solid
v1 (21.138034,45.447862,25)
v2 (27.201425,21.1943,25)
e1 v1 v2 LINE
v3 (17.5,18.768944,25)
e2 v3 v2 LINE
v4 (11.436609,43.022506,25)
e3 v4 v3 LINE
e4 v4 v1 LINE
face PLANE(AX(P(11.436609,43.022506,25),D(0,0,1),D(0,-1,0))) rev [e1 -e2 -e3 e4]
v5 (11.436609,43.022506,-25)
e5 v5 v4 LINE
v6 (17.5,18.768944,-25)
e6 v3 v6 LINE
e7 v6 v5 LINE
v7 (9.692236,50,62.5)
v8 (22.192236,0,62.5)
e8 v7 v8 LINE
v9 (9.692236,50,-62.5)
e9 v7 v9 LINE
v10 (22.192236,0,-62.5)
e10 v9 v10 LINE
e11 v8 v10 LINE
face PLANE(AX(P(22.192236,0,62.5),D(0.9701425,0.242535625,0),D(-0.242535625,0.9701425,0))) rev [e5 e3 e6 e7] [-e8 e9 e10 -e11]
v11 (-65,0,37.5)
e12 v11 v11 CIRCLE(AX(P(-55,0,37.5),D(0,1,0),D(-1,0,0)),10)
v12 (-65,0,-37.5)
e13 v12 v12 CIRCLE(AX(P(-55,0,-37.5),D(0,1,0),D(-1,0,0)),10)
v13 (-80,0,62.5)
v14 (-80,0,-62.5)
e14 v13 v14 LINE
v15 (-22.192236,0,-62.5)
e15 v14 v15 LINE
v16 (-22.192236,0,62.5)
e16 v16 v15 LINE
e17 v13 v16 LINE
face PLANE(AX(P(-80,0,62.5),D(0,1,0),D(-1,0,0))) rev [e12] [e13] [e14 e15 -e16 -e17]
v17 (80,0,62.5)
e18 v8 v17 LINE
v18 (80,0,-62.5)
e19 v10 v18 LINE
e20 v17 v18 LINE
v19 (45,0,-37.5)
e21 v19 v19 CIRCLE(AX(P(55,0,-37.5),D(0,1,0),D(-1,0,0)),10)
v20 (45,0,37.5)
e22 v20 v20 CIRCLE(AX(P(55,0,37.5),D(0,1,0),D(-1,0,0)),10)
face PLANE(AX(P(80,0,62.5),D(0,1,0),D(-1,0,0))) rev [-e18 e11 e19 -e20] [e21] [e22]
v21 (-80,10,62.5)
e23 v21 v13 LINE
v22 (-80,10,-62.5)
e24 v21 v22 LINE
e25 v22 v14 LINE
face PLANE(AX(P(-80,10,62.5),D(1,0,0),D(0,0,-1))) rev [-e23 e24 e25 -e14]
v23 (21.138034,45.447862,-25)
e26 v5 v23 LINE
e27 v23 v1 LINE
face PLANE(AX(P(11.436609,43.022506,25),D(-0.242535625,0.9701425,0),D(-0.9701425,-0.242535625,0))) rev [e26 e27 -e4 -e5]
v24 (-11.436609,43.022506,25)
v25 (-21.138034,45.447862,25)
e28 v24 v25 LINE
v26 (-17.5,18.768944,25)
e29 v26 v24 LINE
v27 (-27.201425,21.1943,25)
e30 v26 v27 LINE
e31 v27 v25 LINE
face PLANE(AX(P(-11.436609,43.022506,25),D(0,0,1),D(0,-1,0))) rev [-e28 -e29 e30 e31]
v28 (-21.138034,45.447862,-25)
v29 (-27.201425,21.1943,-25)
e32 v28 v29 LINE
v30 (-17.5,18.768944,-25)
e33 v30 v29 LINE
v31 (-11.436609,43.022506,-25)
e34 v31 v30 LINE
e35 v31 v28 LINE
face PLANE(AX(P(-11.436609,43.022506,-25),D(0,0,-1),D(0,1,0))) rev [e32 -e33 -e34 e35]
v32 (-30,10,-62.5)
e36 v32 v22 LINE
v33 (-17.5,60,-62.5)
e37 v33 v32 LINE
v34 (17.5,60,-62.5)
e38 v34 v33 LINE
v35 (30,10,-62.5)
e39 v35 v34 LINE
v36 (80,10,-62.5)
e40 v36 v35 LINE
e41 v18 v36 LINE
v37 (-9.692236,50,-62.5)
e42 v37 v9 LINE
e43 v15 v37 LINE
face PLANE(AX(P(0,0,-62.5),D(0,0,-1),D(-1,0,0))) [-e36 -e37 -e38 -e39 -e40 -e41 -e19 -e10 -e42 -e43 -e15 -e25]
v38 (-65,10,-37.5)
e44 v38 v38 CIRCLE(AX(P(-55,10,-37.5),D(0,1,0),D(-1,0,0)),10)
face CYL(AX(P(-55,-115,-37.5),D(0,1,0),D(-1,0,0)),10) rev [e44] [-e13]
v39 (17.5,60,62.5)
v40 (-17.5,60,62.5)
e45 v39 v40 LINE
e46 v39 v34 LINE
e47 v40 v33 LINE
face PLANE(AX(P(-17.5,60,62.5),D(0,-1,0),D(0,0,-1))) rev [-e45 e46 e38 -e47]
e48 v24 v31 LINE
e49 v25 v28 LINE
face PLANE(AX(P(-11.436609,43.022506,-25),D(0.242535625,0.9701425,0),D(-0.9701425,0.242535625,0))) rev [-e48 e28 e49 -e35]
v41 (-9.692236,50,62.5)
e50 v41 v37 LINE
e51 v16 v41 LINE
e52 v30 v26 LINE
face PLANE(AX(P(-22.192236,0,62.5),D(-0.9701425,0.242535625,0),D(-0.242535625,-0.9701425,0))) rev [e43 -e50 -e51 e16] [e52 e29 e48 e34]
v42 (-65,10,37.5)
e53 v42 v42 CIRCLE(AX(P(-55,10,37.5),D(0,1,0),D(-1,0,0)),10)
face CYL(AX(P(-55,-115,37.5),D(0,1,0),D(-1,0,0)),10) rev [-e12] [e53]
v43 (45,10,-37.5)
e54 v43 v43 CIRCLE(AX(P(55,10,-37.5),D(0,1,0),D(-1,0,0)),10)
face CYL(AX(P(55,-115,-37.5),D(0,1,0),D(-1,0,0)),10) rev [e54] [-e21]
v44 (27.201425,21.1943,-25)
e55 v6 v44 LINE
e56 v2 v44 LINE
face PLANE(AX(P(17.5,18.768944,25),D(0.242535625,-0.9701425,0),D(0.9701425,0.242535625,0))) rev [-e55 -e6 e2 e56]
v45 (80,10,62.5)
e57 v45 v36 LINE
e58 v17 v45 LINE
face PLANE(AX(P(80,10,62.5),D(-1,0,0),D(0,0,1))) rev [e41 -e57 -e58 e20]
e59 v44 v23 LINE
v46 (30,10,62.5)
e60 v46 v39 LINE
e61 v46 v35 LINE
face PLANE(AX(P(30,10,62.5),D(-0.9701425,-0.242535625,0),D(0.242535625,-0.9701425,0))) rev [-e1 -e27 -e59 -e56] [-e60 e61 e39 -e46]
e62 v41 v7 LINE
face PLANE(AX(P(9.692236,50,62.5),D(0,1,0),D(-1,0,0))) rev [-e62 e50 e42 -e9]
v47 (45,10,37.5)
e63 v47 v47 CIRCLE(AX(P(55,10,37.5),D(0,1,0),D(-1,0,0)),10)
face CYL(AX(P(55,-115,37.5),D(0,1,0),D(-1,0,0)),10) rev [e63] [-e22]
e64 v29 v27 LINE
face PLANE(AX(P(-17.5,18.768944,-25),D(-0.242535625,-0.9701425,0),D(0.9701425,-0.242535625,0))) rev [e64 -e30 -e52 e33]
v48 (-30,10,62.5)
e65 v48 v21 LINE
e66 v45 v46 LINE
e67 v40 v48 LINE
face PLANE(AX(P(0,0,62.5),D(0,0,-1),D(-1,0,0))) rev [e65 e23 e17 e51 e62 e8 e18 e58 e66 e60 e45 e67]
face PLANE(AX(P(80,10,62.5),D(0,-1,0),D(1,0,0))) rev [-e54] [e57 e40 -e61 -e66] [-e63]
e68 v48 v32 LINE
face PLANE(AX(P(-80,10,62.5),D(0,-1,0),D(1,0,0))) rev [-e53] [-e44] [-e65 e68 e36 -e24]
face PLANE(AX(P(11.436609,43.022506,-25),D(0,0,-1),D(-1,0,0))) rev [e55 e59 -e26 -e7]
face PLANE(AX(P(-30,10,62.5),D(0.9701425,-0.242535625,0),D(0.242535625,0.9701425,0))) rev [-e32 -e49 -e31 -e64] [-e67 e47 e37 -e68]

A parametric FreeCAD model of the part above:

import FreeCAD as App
import Part
import Sketcher

V = App.Vector
Q = App.Units.Quantity

doc = App.newDocument("Part")
body = doc.addObject("PartDesign::Body", "Body")

# Sketch on XY plane
sketch1 = body.newObject("Sketcher::SketchObject", "Sketch")
sketch1.AttachmentSupport = (doc.getObject("XY_Plane"), [""])
sketch1.MapMode = "FlatFace"
sketch1.addGeometry([
    Part.LineSegment(V(18, 60, 0), V(-18, 60, 0)),  # 0
    Part.LineSegment(V(-18, 60, 0), V(-30, 10, 0)),  # 1
    Part.LineSegment(V(-30, 10, 0), V(-80, 10, 0)),  # 2
    Part.LineSegment(V(-80, 10, 0), V(-80, 0, 0)),  # 3
    Part.LineSegment(V(-80, 0, 0), V(-22, 0, 0)),  # 4
    Part.LineSegment(V(-22, 0, 0), V(-10, 50, 0)),  # 5
    Part.LineSegment(V(-10, 50, 0), V(10, 50, 0)),  # 6
    Part.LineSegment(V(10, 50, 0), V(22, 0, 0)),  # 7
    Part.LineSegment(V(22, 0, 0), V(80, 0, 0)),  # 8
    Part.LineSegment(V(80, 0, 0), V(80, 10, 0)),  # 9
    Part.LineSegment(V(80, 10, 0), V(30, 10, 0)),  # 10
    Part.LineSegment(V(30, 10, 0), V(18, 60, 0)),  # 11
], False)
sketch1.addConstraint([
    Sketcher.Constraint("Coincident", 0, 2, 1, 1),
    Sketcher.Constraint("Coincident", 1, 2, 2, 1),
    Sketcher.Constraint("Coincident", 2, 2, 3, 1),
    Sketcher.Constraint("Coincident", 3, 2, 4, 1),
    Sketcher.Constraint("Coincident", 4, 2, 5, 1),
    Sketcher.Constraint("Coincident", 5, 2, 6, 1),
    Sketcher.Constraint("Coincident", 6, 2, 7, 1),
    Sketcher.Constraint("Coincident", 7, 2, 8, 1),
    Sketcher.Constraint("Coincident", 8, 2, 9, 1),
    Sketcher.Constraint("Coincident", 9, 2, 10, 1),
    Sketcher.Constraint("Coincident", 10, 2, 11, 1),
    Sketcher.Constraint("Coincident", 11, 2, 0, 1),
    Sketcher.Constraint("Horizontal", 0),
    Sketcher.Constraint("Horizontal", 2),
    Sketcher.Constraint("Vertical", 3),
    Sketcher.Constraint("Horizontal", 4),
    Sketcher.Constraint("Horizontal", 6),
    Sketcher.Constraint("Horizontal", 8),
    Sketcher.Constraint("Vertical", 9),
    Sketcher.Constraint("Horizontal", 10),
    Sketcher.Constraint("Symmetric", 4, 2, 7, 2, -1, 1),
    Sketcher.Constraint("Symmetric", 3, 2, 8, 2, -2),
    Sketcher.Constraint("Symmetric", 1, 2, 10, 2, -2),
    Sketcher.Constraint("Parallel", 1, 5),
    Sketcher.Constraint("Parallel", 7, 11),
    Sketcher.Constraint("Equal", 1, 5),
    Sketcher.Constraint("Equal", 5, 7),
    Sketcher.Constraint("DistanceX", 0, 2, 0, 1, Q("35 mm")),
    Sketcher.Constraint("DistanceX", 2, 2, 2, 1, Q("50 mm")),
    Sketcher.Constraint("DistanceY", 3, 2, 3, 1, Q("10 mm")),
    Sketcher.Constraint("DistanceY", -1, 1, 0, 2, Q("60 mm")),
    Sketcher.Constraint("DistanceX", 1, 2, -1, 1, Q("30 mm")),
    Sketcher.Constraint("DistanceX", 6, 1, 6, 2, Q("19.384472 mm")),
])
pad1 = body.newObject("PartDesign::Pad", "Pad")
pad1.Profile = sketch1
pad1.Length = 125
pad1.Midplane = True

# Sketch on XZ plane
sketch2 = body.newObject("Sketcher::SketchObject", "Sketch001")
sketch2.AttachmentSupport = (doc.getObject("XZ_Plane"), [""])
sketch2.MapMode = "FlatFace"
sketch2.AttachmentOffset = App.Placement(V(0, 0, -10), App.Rotation())
sketch2.addGeometry([
    Part.Circle(V(55, -38, 0), V(0, 0, 1), 10),
    Part.Circle(V(-55, -38, 0), V(0, 0, 1), 10),
    Part.Circle(V(-55, 38, 0), V(0, 0, 1), 10),
    Part.Circle(V(55, 38, 0), V(0, 0, 1), 10),
], False)
sketch2.addConstraint([
    Sketcher.Constraint("Equal", 0, 1),
    Sketcher.Constraint("Equal", 1, 2),
    Sketcher.Constraint("Equal", 2, 3),
    Sketcher.Constraint("Symmetric", 0, 3, 2, 3, -1, 1),
    Sketcher.Constraint("Symmetric", 1, 3, 3, 3, -1, 1),
    Sketcher.Constraint("Symmetric", 0, 3, 1, 3, -2),
    Sketcher.Constraint("Diameter", 0, Q("20 mm")),
    Sketcher.Constraint("DistanceX", -1, 1, 0, 3, Q("55 mm")),
    Sketcher.Constraint("DistanceY", 1, 3, 2, 3, Q("75 mm")),
])
pocket1 = body.newObject("PartDesign::Pocket", "Pocket")
pocket1.Profile = sketch2
pocket1.Length = 125
pocket1.Reversed = True

# Sketch on an angled plane
sketch3 = body.newObject("Sketcher::SketchObject", "Sketch002")
sketch3.Placement = App.Placement(V(30.588235, 7.647059, 0), App.Rotation(V(0, 0, -1), V(-0.242535625, 0.9701425, 0), V(0.9701425, 0.242535625, 0), "ZXY"))
sketch3.addGeometry([
    Part.LineSegment(V(-25, 39, 0), V(-25, 14, 0)),
    Part.LineSegment(V(-25, 14, 0), V(25, 14, 0)),
    Part.LineSegment(V(25, 14, 0), V(25, 39, 0)),
    Part.LineSegment(V(25, 39, 0), V(-25, 39, 0)),
], False)
sketch3.addConstraint([
    Sketcher.Constraint("Coincident", 0, 2, 1, 1),
    Sketcher.Constraint("Coincident", 1, 2, 2, 1),
    Sketcher.Constraint("Coincident", 2, 2, 3, 1),
    Sketcher.Constraint("Coincident", 3, 2, 0, 1),
    Sketcher.Constraint("Vertical", 0),
    Sketcher.Constraint("Horizontal", 1),
    Sketcher.Constraint("Vertical", 2),
    Sketcher.Constraint("Horizontal", 3),
    Sketcher.Constraint("DistanceX", 1, 1, 1, 2, Q("50 mm")),
    Sketcher.Constraint("DistanceY", 0, 2, 0, 1, Q("25 mm")),
    Sketcher.Constraint("DistanceX", 0, 2, -1, 1, Q("25 mm")),
    Sketcher.Constraint("DistanceY", -1, 1, 0, 2, Q("13.964177 mm")),
])
pocket2 = body.newObject("PartDesign::Pocket", "Pocket001")
pocket2.Profile = sketch3
pocket2.Length = 10

# Sketch on an angled plane
sketch4 = body.newObject("Sketcher::SketchObject", "Sketch003")
sketch4.Placement = App.Placement(V(-30.588235, 7.647059, 0), App.Rotation(V(0, 0, 1), V(0.242535625, 0.9701425, 0), V(-0.9701425, 0.242535625, 0), "ZXY"))
sketch4.addGeometry([
    Part.LineSegment(V(-25, 39, 0), V(-25, 14, 0)),
    Part.LineSegment(V(-25, 14, 0), V(25, 14, 0)),
    Part.LineSegment(V(25, 14, 0), V(25, 39, 0)),
    Part.LineSegment(V(25, 39, 0), V(-25, 39, 0)),
], False)
sketch4.addConstraint([
    Sketcher.Constraint("Coincident", 0, 2, 1, 1),
    Sketcher.Constraint("Coincident", 1, 2, 2, 1),
    Sketcher.Constraint("Coincident", 2, 2, 3, 1),
    Sketcher.Constraint("Coincident", 3, 2, 0, 1),
    Sketcher.Constraint("Vertical", 0),
    Sketcher.Constraint("Horizontal", 1),
    Sketcher.Constraint("Vertical", 2),
    Sketcher.Constraint("Horizontal", 3),
    Sketcher.Constraint("DistanceX", 1, 1, 1, 2, Q("50 mm")),
    Sketcher.Constraint("DistanceY", 0, 2, 0, 1, Q("25 mm")),
    Sketcher.Constraint("DistanceX", 0, 2, -1, 1, Q("25 mm")),
    Sketcher.Constraint("DistanceY", -1, 1, 0, 2, Q("13.964177 mm")),
])
pocket3 = body.newObject("PartDesign::Pocket", "Pocket002")
pocket3.Profile = sketch4
pocket3.Length = 10

doc.recompute()
